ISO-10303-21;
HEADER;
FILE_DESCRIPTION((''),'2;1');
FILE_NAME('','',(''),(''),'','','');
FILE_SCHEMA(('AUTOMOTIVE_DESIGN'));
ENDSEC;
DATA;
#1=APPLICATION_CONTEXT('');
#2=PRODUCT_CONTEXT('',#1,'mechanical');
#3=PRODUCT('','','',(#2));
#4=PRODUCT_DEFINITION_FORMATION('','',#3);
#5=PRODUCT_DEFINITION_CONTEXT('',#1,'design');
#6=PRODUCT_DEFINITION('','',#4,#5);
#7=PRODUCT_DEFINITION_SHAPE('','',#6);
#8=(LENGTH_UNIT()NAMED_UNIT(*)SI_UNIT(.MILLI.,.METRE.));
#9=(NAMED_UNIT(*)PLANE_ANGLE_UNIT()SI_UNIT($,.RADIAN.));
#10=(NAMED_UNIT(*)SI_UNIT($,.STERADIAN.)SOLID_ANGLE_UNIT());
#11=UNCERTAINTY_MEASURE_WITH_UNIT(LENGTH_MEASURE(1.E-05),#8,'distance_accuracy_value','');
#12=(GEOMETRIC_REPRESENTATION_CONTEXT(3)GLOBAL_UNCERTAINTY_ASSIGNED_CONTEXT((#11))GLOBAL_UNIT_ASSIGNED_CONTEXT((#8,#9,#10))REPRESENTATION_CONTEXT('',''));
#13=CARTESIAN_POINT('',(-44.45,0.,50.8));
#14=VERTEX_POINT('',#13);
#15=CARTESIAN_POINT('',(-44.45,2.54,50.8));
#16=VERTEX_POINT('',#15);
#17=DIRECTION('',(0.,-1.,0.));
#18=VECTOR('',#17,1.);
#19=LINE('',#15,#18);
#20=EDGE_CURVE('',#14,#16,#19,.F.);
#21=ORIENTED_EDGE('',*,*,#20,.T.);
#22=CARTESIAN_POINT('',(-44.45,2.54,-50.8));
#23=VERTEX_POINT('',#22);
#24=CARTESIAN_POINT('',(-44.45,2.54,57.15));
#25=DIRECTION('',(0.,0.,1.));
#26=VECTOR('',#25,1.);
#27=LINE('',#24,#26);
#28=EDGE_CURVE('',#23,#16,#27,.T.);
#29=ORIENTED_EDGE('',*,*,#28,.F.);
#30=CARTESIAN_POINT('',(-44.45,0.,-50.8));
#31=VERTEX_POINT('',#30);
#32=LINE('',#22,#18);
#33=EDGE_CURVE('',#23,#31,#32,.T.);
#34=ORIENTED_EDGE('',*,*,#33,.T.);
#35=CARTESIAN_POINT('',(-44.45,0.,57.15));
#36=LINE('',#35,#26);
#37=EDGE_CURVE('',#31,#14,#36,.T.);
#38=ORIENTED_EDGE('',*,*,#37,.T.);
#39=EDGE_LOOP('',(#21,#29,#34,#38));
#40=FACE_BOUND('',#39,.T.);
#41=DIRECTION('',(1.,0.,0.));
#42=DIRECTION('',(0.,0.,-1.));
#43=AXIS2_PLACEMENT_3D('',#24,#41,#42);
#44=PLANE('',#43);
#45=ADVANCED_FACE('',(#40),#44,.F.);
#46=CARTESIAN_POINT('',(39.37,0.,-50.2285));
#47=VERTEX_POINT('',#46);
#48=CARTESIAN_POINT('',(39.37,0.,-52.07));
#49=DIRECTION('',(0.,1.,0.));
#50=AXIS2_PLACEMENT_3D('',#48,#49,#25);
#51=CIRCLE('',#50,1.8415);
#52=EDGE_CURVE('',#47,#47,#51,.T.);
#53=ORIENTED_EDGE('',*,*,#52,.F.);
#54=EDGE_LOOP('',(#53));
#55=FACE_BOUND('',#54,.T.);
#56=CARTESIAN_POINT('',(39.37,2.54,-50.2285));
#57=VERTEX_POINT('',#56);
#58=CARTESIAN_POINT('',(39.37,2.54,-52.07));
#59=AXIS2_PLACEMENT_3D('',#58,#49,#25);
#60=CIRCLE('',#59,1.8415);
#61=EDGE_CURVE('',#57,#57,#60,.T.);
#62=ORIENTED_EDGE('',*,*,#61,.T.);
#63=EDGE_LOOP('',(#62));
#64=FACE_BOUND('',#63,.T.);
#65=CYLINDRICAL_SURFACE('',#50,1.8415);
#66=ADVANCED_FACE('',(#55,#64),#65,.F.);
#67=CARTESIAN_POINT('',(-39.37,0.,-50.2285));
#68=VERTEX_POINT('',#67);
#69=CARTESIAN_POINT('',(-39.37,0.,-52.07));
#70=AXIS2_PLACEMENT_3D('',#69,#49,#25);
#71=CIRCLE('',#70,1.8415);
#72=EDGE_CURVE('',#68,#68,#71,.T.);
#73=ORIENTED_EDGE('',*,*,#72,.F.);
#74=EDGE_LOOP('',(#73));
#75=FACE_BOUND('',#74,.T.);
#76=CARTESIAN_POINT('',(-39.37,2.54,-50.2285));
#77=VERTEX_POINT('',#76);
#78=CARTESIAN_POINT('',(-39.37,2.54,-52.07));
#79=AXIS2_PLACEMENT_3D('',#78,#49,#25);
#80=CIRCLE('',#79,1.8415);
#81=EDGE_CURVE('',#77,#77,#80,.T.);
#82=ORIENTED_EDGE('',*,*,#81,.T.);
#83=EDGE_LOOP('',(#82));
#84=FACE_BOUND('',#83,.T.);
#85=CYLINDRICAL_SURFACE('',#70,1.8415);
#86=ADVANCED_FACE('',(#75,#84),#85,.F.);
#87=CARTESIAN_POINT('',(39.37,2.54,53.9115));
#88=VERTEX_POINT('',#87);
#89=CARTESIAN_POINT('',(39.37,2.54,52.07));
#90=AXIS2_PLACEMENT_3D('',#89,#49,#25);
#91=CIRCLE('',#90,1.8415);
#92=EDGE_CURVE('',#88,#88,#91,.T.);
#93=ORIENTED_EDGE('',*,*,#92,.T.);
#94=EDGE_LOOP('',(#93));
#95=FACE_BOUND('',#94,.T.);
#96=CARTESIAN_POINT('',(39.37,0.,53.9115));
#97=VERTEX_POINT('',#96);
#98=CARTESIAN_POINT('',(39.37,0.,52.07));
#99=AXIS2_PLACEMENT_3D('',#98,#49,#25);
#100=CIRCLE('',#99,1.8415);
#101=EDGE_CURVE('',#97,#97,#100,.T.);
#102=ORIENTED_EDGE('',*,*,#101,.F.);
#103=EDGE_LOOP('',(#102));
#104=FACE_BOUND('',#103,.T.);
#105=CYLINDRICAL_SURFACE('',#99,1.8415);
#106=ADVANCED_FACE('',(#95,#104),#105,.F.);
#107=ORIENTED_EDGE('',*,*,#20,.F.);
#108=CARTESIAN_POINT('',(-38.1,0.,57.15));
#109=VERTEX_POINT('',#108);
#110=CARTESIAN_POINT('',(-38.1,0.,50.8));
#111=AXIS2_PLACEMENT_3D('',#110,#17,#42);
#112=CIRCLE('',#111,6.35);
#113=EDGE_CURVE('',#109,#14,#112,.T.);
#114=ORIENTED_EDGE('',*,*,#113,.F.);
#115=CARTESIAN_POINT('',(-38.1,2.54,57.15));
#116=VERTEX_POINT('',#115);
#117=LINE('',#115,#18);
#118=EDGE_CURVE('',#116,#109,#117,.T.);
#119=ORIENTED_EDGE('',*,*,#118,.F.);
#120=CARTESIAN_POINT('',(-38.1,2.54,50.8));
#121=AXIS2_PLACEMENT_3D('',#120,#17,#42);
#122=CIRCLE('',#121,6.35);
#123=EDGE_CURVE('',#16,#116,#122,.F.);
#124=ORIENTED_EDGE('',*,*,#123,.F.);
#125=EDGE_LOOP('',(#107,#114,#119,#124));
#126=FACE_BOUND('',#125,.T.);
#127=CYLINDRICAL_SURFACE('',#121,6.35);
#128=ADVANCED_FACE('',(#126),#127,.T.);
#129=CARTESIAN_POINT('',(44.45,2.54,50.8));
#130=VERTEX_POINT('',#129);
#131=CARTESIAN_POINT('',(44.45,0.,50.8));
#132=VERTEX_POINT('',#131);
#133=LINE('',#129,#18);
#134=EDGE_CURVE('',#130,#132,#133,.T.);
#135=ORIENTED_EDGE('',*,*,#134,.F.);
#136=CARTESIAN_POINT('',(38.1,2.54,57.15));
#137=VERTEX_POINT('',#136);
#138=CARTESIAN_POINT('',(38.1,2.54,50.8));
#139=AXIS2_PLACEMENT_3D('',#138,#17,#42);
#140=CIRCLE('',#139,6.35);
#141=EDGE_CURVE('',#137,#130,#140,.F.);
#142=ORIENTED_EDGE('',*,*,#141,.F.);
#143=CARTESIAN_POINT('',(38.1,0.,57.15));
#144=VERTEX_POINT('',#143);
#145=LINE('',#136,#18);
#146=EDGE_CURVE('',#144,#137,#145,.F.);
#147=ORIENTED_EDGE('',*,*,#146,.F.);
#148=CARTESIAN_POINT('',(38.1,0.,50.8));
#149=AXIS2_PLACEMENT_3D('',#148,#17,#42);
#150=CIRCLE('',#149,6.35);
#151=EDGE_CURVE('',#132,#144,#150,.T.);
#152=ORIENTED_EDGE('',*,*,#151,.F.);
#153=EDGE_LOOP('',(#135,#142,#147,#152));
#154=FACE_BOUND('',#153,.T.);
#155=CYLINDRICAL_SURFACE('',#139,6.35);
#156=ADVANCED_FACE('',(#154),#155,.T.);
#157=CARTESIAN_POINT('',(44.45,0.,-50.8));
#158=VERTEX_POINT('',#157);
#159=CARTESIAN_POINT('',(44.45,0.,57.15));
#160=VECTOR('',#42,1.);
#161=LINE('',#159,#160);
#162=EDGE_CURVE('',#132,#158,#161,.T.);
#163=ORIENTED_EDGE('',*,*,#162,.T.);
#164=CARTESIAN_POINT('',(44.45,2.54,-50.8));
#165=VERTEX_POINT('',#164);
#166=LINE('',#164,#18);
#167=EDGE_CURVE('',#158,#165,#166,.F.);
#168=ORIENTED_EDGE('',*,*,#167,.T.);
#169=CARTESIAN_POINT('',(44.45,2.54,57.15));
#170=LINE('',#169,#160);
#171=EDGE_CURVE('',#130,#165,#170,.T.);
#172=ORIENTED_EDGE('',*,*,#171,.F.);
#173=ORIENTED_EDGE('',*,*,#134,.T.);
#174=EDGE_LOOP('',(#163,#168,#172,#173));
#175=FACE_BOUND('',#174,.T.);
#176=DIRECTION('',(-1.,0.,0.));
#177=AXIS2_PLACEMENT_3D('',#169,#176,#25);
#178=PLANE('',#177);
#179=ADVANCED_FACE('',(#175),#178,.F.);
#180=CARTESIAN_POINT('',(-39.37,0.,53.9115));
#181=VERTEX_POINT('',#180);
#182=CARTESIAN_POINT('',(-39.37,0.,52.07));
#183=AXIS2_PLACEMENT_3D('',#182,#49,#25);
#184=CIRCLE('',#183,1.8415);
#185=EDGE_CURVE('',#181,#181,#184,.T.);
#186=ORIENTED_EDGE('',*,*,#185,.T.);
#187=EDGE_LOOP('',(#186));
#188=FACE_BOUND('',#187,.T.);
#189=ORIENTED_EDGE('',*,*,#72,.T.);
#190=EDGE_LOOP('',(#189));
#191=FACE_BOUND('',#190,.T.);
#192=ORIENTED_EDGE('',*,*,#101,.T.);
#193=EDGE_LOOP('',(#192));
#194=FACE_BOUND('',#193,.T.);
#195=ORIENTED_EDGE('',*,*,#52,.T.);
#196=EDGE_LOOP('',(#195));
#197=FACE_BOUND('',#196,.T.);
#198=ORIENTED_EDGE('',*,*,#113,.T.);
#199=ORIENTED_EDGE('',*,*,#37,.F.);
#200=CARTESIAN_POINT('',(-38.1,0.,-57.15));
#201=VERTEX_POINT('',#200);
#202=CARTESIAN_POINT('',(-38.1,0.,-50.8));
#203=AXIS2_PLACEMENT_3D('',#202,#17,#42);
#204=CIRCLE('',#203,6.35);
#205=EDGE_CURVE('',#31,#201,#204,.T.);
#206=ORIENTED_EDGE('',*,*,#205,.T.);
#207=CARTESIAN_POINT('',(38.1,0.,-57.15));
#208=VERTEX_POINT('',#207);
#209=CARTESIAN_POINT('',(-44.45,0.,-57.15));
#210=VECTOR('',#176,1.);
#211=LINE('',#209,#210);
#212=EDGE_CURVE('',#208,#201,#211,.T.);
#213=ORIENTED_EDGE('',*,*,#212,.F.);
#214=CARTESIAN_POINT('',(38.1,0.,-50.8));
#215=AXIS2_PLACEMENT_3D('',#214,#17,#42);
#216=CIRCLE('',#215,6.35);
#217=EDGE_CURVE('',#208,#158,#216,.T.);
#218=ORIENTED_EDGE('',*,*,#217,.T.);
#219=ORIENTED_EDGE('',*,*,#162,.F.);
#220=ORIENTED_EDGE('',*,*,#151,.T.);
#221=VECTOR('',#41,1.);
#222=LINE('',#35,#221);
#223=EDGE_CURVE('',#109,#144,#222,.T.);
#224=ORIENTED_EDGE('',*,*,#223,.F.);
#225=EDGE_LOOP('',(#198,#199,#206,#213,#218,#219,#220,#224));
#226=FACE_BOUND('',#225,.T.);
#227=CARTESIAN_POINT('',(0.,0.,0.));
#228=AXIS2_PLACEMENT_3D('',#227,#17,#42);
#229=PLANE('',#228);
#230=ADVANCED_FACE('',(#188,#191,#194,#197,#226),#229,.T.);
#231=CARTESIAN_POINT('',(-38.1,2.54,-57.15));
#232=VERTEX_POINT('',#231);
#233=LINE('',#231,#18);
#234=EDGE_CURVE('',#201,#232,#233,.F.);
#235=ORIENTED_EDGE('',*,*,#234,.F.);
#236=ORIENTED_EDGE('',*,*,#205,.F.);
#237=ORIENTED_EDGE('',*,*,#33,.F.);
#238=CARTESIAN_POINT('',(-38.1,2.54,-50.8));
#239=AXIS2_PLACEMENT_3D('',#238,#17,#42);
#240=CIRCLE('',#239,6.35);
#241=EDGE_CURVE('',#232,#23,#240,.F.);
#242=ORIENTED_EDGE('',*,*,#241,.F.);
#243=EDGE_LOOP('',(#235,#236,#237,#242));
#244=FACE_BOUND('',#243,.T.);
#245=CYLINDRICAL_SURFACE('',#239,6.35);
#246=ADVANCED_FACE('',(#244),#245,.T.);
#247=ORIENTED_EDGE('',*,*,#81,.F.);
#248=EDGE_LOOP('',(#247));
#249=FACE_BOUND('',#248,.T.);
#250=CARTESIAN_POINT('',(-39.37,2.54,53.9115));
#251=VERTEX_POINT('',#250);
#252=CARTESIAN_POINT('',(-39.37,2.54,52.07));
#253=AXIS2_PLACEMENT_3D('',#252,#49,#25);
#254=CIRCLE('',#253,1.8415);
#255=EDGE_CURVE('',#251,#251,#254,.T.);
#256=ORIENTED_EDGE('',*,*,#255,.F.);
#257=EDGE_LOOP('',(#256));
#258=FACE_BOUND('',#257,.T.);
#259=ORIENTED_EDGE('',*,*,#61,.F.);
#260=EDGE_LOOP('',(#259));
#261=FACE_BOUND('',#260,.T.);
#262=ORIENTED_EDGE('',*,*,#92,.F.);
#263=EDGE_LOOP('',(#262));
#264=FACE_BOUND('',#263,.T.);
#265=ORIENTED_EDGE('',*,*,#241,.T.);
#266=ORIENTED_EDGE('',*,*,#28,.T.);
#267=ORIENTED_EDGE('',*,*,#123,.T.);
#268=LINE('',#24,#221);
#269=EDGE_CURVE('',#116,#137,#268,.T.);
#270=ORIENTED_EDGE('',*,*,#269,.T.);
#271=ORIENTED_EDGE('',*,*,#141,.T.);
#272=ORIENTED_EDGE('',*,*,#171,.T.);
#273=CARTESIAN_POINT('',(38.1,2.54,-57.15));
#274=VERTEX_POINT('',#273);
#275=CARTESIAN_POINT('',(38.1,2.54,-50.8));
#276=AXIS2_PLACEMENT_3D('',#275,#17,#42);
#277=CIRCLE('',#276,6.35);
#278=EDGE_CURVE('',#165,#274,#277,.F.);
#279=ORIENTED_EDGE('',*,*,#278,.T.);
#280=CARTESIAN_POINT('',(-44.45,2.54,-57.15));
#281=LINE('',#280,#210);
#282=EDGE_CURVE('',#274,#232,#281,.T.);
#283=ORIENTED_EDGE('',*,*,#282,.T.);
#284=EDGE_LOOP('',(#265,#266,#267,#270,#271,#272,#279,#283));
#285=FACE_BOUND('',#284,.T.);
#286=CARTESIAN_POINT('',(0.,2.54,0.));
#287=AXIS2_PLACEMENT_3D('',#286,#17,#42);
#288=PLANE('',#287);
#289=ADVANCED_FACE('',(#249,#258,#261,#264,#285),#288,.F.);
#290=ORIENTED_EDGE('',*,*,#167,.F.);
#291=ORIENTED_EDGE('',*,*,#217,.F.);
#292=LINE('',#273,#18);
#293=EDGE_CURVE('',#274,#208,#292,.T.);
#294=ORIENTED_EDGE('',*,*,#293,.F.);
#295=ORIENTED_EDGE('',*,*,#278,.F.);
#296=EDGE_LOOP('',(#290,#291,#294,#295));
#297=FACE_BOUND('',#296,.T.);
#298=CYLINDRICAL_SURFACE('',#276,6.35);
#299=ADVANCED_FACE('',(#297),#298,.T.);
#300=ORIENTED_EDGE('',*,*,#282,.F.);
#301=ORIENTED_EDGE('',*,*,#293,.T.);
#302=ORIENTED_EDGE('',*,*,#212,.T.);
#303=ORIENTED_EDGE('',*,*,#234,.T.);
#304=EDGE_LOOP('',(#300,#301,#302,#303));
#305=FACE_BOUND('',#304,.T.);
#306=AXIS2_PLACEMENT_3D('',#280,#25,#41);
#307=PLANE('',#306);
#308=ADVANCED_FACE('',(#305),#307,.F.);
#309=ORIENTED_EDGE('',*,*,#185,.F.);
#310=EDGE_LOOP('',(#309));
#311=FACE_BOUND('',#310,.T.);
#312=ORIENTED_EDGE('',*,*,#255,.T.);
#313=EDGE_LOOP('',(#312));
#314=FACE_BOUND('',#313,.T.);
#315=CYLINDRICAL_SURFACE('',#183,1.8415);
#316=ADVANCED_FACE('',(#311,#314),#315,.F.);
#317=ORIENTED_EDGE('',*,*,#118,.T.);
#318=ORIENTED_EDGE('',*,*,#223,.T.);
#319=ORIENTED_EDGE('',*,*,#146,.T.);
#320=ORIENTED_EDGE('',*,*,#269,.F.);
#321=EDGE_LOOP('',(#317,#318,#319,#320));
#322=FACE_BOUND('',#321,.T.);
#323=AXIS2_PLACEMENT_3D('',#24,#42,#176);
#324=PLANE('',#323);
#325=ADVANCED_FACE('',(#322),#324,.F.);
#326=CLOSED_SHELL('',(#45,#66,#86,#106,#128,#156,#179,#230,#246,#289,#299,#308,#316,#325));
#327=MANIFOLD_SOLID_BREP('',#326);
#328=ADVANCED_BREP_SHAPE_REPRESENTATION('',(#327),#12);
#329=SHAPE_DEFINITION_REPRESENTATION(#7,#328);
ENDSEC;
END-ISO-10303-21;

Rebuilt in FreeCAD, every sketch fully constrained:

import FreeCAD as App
import Part
import Sketcher
from FreeCAD import Vector
Q = App.Units.Quantity


def edges_at(feature, points):
    """Names of the edges that pass closest to the given points."""
    edges = feature.Shape.Edges
    near = lambda p: min(range(len(edges)), key=lambda i: edges[i].distToShape(Part.Vertex(*p))[0])
    return sorted({f"Edge{near(p) + 1}" for p in points})


def add_polygon(sketch, points):
    """Adds a closed chain of lines whose ends are joined by coincident constraints."""
    first, n = sketch.GeometryCount, len(points)
    for a, b in zip(points, points[1:] + points[:1]):
        sketch.addGeometry(Part.LineSegment(App.Vector(*a, 0), App.Vector(*b, 0)), False)
    for i in range(n):
        sketch.addConstraint(Sketcher.Constraint("Coincident", first + i, 2, first + (i + 1) % n, 1))

doc = App.newDocument("Part")
body = doc.addObject("PartDesign::Body", "Body")

# Sketch on XZ plane
sketch1 = body.newObject("Sketcher::SketchObject", "Sketch")
sketch1.AttachmentSupport = (doc.getObject("XZ_Plane"), [""])
sketch1.MapMode = "FlatFace"
add_polygon(sketch1, [(-44, -57), (-44, 57), (44, 57), (44, -57)])  # lines 0-3
sketch1.addConstraint([
    Sketcher.Constraint("Vertical", 0),
    Sketcher.Constraint("Horizontal", 1),
    Sketcher.Constraint("Vertical", 2),
    Sketcher.Constraint("Horizontal", 3),
    Sketcher.Constraint("Symmetric", 0, 2, 2, 2, -1, 1),
    Sketcher.Constraint("DistanceX", 1, 1, 1, 2, Q("3.5 in")),
    Sketcher.Constraint("DistanceY", 0, 1, 0, 2, Q("4.5 in")),
])
pad1 = body.newObject("PartDesign::Pad", "Pad")
pad1.Profile = sketch1
pad1.Length = Q("0.1 in")
pad1.Reversed = True

# Sketch on XZ plane
sketch2 = body.newObject("Sketcher::SketchObject", "Sketch001")
sketch2.AttachmentSupport = (doc.getObject("XZ_Plane"), [""])
sketch2.MapMode = "FlatFace"
sketch2.AttachmentOffset = App.Placement(Vector(0, 0, -0.1 * 25.4), App.Rotation())
sketch2.addGeometry([
    Part.Circle(Vector(-39.4, -52.1, 0), Vector(0, 0, 1), 1.8),
    Part.Circle(Vector(39.4, -52.1, 0), Vector(0, 0, 1), 1.8),
    Part.Circle(Vector(-39.4, 52.1, 0), Vector(0, 0, 1), 1.8),
    Part.Circle(Vector(39.4, 52.1, 0), Vector(0, 0, 1), 1.8),
], False)
sketch2.addConstraint([
    Sketcher.Constraint("Equal", 0, 1),
    Sketcher.Constraint("Equal", 1, 2),
    Sketcher.Constraint("Equal", 2, 3),
    Sketcher.Constraint("Symmetric", 1, 3, 2, 3, -1, 1),
    Sketcher.Constraint("Symmetric", 0, 3, 3, 3, -1, 1),
    Sketcher.Constraint("Symmetric", 0, 3, 1, 3, -2),
    Sketcher.Constraint("Diameter", 0, Q("0.145 in")),
    Sketcher.Constraint("DistanceX", 0, 3, 1, 3, Q("3.1 in")),
    Sketcher.Constraint("DistanceY", 0, 3, 2, 3, Q("4.1 in")),
])
pocket1 = body.newObject("PartDesign::Pocket", "Pocket")
pocket1.Profile = sketch2
pocket1.Type = "ThroughAll"
pocket1.Reversed = True
doc.recompute()

fillet = body.newObject("PartDesign::Fillet", "Fillet")
fillet.Base = (pocket1, edges_at(pocket1, [
    (44.45, 1.27, 57.15),
    (-44.45, 1.27, 57.15),
    (-44.45, 1.27, -57.15),
    (44.45, 1.27, -57.15),
]))
fillet.Radius = Q("0.25 in")

doc.recompute()
